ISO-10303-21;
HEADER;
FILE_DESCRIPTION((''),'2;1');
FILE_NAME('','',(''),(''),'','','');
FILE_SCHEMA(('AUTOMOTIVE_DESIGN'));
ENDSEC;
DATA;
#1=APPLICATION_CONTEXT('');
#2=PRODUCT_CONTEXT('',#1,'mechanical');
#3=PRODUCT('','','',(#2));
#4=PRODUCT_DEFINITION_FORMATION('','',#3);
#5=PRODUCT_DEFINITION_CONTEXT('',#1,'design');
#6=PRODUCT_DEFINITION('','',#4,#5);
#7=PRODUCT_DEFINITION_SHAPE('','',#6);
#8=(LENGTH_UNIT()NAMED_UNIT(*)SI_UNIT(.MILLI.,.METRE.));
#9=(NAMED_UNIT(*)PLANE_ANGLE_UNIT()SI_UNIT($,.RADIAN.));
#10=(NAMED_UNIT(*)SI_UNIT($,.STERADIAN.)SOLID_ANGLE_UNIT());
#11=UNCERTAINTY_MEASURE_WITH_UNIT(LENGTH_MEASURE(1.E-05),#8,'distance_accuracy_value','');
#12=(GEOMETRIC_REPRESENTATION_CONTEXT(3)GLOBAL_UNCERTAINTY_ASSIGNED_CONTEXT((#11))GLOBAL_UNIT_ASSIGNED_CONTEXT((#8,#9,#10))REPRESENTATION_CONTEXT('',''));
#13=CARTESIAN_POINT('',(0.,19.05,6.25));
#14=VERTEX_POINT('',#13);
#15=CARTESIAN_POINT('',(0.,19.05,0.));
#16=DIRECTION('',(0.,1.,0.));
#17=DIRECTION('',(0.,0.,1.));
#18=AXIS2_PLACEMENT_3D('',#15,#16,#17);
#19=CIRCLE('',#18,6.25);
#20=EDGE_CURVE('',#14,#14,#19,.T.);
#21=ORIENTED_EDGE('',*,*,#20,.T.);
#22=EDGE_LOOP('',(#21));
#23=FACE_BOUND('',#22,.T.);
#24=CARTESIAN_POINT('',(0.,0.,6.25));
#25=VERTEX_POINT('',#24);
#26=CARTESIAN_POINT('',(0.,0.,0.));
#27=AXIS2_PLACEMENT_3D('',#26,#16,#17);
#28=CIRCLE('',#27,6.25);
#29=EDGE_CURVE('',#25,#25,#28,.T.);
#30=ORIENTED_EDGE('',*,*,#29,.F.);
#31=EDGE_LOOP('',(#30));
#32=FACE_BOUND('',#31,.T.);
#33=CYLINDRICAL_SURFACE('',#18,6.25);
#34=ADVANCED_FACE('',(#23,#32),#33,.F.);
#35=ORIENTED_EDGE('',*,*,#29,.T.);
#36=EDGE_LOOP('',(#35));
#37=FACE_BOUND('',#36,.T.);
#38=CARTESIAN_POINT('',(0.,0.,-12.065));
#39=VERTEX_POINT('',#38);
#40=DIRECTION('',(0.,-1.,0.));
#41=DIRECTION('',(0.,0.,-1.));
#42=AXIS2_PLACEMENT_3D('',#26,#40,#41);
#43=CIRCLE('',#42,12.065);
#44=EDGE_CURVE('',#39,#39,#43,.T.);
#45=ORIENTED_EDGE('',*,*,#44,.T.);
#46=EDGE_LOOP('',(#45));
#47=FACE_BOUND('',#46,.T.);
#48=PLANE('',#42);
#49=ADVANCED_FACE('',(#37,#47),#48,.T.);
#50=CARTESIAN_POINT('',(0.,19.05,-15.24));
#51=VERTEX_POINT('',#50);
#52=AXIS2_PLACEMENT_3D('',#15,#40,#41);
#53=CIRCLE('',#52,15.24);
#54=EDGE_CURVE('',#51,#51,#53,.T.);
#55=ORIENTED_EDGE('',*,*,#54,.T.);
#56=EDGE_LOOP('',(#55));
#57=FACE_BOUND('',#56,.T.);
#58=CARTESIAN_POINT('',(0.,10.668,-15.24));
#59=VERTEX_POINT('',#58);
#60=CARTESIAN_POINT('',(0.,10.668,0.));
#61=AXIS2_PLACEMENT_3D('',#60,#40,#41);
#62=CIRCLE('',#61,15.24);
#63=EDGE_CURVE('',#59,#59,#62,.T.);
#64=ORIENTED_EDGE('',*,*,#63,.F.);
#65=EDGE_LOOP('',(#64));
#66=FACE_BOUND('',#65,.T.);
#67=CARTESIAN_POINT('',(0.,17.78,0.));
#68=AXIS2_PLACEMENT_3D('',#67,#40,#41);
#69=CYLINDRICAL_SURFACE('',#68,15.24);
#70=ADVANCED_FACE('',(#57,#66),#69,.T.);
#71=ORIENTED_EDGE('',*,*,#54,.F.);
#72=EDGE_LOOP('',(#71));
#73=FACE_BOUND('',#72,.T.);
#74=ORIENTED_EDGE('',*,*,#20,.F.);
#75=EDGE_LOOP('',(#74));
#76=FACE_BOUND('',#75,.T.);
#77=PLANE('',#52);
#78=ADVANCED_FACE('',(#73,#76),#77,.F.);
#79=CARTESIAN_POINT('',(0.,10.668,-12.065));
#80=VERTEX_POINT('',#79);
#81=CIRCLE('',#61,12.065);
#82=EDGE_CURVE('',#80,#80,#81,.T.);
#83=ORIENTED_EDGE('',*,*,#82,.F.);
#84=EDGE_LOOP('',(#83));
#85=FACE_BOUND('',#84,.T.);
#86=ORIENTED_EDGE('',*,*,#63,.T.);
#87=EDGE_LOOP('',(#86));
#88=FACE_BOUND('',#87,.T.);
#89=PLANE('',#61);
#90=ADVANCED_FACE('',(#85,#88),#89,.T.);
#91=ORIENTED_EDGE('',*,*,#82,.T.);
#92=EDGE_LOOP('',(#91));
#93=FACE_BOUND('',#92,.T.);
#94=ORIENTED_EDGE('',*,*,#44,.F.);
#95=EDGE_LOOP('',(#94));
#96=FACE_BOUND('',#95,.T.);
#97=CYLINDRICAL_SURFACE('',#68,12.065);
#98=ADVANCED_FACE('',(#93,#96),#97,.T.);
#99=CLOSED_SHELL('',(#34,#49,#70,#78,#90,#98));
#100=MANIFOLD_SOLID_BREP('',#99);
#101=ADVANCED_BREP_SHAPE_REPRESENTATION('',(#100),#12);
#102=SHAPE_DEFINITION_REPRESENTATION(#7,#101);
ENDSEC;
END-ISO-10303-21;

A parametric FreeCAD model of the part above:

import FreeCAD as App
import Part
import Sketcher

V = App.Vector
Q = App.Units.Quantity


def add_polygon(sketch, points):
    """Adds a closed chain of lines whose ends are joined by coincident constraints."""
    first, n = sketch.GeometryCount, len(points)
    for a, b in zip(points, points[1:] + points[:1]):
        sketch.addGeometry(Part.LineSegment(App.Vector(*a, 0), App.Vector(*b, 0)), False)
    for i in range(n):
        sketch.addConstraint(Sketcher.Constraint("Coincident", first + i, 2, first + (i + 1) % n, 1))

doc = App.newDocument("Part")
body = doc.addObject("PartDesign::Body", "Body")

# Sketch on XY plane
sketch1 = body.newObject("Sketcher::SketchObject", "Sketch")
sketch1.AttachmentSupport = (doc.getObject("XY_Plane"), [""])
sketch1.MapMode = "FlatFace"
add_polygon(sketch1, [(0, 19.1), (0, 0), (12.1, 0), (12.1, 10.7), (15.2, 10.7), (15.2, 19.1)])  # lines 0-5
sketch1.addConstraint([
    Sketcher.Constraint("Vertical", 0),
    Sketcher.Constraint("Horizontal", 1),
    Sketcher.Constraint("Vertical", 2),
    Sketcher.Constraint("Horizontal", 3),
    Sketcher.Constraint("Vertical", 4),
    Sketcher.Constraint("Horizontal", 5),
    Sketcher.Constraint("Coincident", 0, 2, -1, 1),
    Sketcher.Constraint("DistanceX", 5, 2, 5, 1, Q("0.6 in")),
    Sketcher.Constraint("DistanceY", 0, 2, 0, 1, Q("0.75 in")),
    Sketcher.Constraint("DistanceY", 2, 1, 2, 2, Q("0.42 in")),
    Sketcher.Constraint("DistanceX", 1, 1, 1, 2, Q("0.475 in")),
])
revolution = body.newObject("PartDesign::Revolution", "Revolution")
revolution.Profile = sketch1
revolution.ReferenceAxis = (sketch1, ["V_Axis"])
revolution.Angle = 360

# Sketch on XZ plane
sketch2 = body.newObject("Sketcher::SketchObject", "Sketch001")
sketch2.AttachmentSupport = (doc.getObject("XZ_Plane"), [""])
sketch2.MapMode = "FlatFace"
sketch2.AttachmentOffset = App.Placement(V(0, 0, -0.75 * 25.4), App.Rotation())
sketch2.addGeometry(Part.Circle(V(0, 0, 0), V(0, 0, 1), 6), False)
sketch2.addConstraint([
    Sketcher.Constraint("Coincident", 0, 3, -1, 1),
    Sketcher.Constraint("Diameter", 0, 12.5),
])
doc.recompute()
hole = body.newObject("PartDesign::Hole", "Hole")
hole.Profile = sketch2
hole.ThreadType = "None"
hole.Diameter = 12.5
hole.DepthType = "ThroughAll"
hole.Reversed = True

doc.recompute()
